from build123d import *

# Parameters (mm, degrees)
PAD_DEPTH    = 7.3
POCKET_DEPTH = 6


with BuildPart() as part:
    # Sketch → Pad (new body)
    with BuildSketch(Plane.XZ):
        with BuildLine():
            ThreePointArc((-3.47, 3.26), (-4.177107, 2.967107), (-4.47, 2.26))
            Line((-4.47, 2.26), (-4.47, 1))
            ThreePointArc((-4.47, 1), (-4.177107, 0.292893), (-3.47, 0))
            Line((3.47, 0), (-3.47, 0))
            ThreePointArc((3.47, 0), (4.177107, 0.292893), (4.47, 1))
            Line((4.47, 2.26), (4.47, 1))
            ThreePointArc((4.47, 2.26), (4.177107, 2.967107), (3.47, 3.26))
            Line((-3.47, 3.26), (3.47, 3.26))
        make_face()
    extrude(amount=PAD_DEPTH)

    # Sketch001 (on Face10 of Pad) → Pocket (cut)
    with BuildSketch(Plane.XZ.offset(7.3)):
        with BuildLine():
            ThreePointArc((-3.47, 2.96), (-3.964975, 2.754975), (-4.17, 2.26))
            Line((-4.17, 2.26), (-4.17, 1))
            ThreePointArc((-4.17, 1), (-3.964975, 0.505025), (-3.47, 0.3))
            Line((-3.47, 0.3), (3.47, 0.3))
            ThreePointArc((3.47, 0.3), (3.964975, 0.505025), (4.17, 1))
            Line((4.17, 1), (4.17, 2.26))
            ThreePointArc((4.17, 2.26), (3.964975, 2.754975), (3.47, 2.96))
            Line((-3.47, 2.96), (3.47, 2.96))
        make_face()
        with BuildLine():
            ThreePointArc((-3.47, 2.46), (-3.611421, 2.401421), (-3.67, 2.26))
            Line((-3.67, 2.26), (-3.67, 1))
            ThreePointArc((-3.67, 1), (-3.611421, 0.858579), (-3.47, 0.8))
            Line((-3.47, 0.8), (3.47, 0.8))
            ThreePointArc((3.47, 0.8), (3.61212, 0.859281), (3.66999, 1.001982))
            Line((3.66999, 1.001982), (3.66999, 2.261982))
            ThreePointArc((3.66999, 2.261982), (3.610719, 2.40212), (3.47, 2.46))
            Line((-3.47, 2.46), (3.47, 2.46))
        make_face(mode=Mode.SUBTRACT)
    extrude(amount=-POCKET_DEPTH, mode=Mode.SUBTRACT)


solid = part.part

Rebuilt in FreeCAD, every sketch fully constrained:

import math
import FreeCAD as App
import Part
import Sketcher

V = App.Vector

doc = App.newDocument("Part")
body = doc.addObject("PartDesign::Body", "Body")

sketch1 = body.newObject("Sketcher::SketchObject", "Sketch")
sketch1.AttachmentSupport = (doc.getObject("XZ_Plane"), [""])
sketch1.MapMode = "FlatFace"
sketch1.addGeometry([
    Part.ArcOfCircle(Part.Circle(V(-3.5, 2.3, 0), V(0, 0, 1), 1), math.radians(90), math.radians(180)),
    Part.LineSegment(V(-4.5, 2.3, 0), V(-4.5, 1, 0)),
    Part.ArcOfCircle(Part.Circle(V(-3.5, 1, 0), V(0, 0, 1), 1), math.radians(180), math.radians(270)),
    Part.LineSegment(V(-3.5, 0, 0), V(3.5, 0, 0)),
    Part.ArcOfCircle(Part.Circle(V(3.5, 1, 0), V(0, 0, 1), 1), math.radians(-90), math.radians(0)),
    Part.LineSegment(V(4.5, 1, 0), V(4.5, 2.3, 0)),
    Part.ArcOfCircle(Part.Circle(V(3.5, 2.3, 0), V(0, 0, 1), 1), math.radians(0), math.radians(90)),
    Part.LineSegment(V(3.5, 3.3, 0), V(-3.5, 3.3, 0)),
], False)
sketch1.addConstraint([
    Sketcher.Constraint("Tangent", 0, 2, 1, 1),
    Sketcher.Constraint("Tangent", 1, 2, 2, 1),
    Sketcher.Constraint("Tangent", 2, 2, 3, 1),
    Sketcher.Constraint("Tangent", 3, 2, 4, 1),
    Sketcher.Constraint("Tangent", 4, 2, 5, 1),
    Sketcher.Constraint("Tangent", 5, 2, 6, 1),
    Sketcher.Constraint("Tangent", 6, 2, 7, 1),
    Sketcher.Constraint("Tangent", 7, 2, 0, 1),
    Sketcher.Constraint("Vertical", 1),
    Sketcher.Constraint("Horizontal", 3),
    Sketcher.Constraint("Vertical", 5),
    Sketcher.Constraint("Horizontal", 7),
    Sketcher.Constraint("Equal", 0, 2),
    Sketcher.Constraint("Equal", 2, 4),
    Sketcher.Constraint("Equal", 4, 6),
    Sketcher.Constraint("Symmetric", 2, 2, 3, 2, -1, 1),
    Sketcher.Constraint("Radius", 0, 0.999999),
    Sketcher.Constraint("DistanceX", 3, 1, 3, 2, 6.94),
    Sketcher.Constraint("DistanceY", 1, 2, 1, 1, 1.26),
])
pad1 = body.newObject("PartDesign::Pad", "Pad")
pad1.Profile = sketch1
pad1.Length = 7.3

sketch2 = body.newObject("Sketcher::SketchObject", "Sketch001")
sketch2.AttachmentSupport = (doc.getObject("XZ_Plane"), [""])
sketch2.MapMode = "FlatFace"
sketch2.AttachmentOffset = App.Placement(V(0, 0, 7.3), App.Rotation())
sketch2.addGeometry([
    Part.ArcOfCircle(Part.Circle(V(-3.47, 2.26, 0), V(0, 0, 1), 0.7), math.radians(90), math.radians(180)),
    Part.LineSegment(V(-4.17, 2.26, 0), V(-4.17, 1, 0)),
    Part.ArcOfCircle(Part.Circle(V(-3.47, 1, 0), V(0, 0, 1), 0.7), math.radians(180), math.radians(270)),
    Part.LineSegment(V(-3.47, 0.3, 0), V(3.47, 0.3, 0)),
    Part.ArcOfCircle(Part.Circle(V(3.47, 1, 0), V(0, 0, 1), 0.7), math.radians(-90), math.radians(0)),
    Part.LineSegment(V(4.17, 1, 0), V(4.17, 2.26, 0)),
    Part.ArcOfCircle(Part.Circle(V(3.47, 2.26, 0), V(0, 0, 1), 0.7), math.radians(0), math.radians(90)),
    Part.LineSegment(V(3.47, 2.96, 0), V(-3.47, 2.96, 0)),
    Part.ArcOfCircle(Part.Circle(V(-3.47, 2.26, 0), V(0, 0, 1), 0.2), math.radians(90), math.radians(180)),
    Part.LineSegment(V(-3.47, 2.46, 0), V(3.47, 2.46, 0)),
    Part.ArcOfCircle(Part.Circle(V(3.47, 2.26, 0), V(0, 0, 1), 0.2), math.radians(1), math.radians(90)),
    Part.LineSegment(V(3.67, 2.26, 0), V(3.67, 1, 0)),
    Part.ArcOfCircle(Part.Circle(V(3.47, 1, 0), V(0, 0, 1), 0.2), math.radians(-90), math.radians(1)),
    Part.LineSegment(V(3.47, 0.8, 0), V(-3.47, 0.8, 0)),
    Part.ArcOfCircle(Part.Circle(V(-3.47, 1, 0), V(0, 0, 1), 0.2), math.radians(-180), math.radians(-90)),
    Part.LineSegment(V(-3.67, 1, 0), V(-3.67, 2.26, 0)),
], False)
sketch2.addConstraint([
    Sketcher.Constraint("Tangent", 0, 2, 1, 1),
    Sketcher.Constraint("Tangent", 1, 2, 2, 1),
    Sketcher.Constraint("Tangent", 2, 2, 3, 1),
    Sketcher.Constraint("Tangent", 3, 2, 4, 1),
    Sketcher.Constraint("Tangent", 4, 2, 5, 1),
    Sketcher.Constraint("Tangent", 5, 2, 6, 1),
    Sketcher.Constraint("Tangent", 6, 2, 7, 1),
    Sketcher.Constraint("Tangent", 7, 2, 0, 1),
    Sketcher.Constraint("Coincident", 8, 1, 9, 1),
    Sketcher.Constraint("Tangent", 9, 2, 10, 2),
    Sketcher.Constraint("Coincident", 10, 1, 11, 1),
    Sketcher.Constraint("Coincident", 11, 2, 12, 2),
    Sketcher.Constraint("Tangent", 12, 1, 13, 1),
    Sketcher.Constraint("Coincident", 13, 2, 14, 2),
    Sketcher.Constraint("Coincident", 14, 1, 15, 1),
    Sketcher.Constraint("Coincident", 15, 2, 8, 2),
    Sketcher.Constraint("Vertical", 1),
    Sketcher.Constraint("Horizontal", 3),
    Sketcher.Constraint("Vertical", 5),
    Sketcher.Constraint("Horizontal", 7),
    Sketcher.Constraint("Horizontal", 9),
    Sketcher.Constraint("Vertical", 11),
    Sketcher.Constraint("Horizontal", 13),
    Sketcher.Constraint("Vertical", 15),
    Sketcher.Constraint("Coincident", 8, 3, 0, 3),
    Sketcher.Constraint("Coincident", 10, 3, 6, 3),
    Sketcher.Constraint("Coincident", 12, 3, 4, 3),
    Sketcher.Constraint("Equal", 0, 2),
    Sketcher.Constraint("Equal", 2, 4),
    Sketcher.Constraint("Equal", 4, 6),
    Sketcher.Constraint("Equal", 12, 14),
    Sketcher.Constraint("Horizontal", 4, 2, 14, 1),
    Sketcher.Constraint("Horizontal", 5, 2, 15, 2),
    Sketcher.Constraint("Vertical", 7, 2, 8, 1),
    Sketcher.Constraint("Vertical", 8, 1, 13, 2),
    Sketcher.Constraint("Equal", 5, 11),
    Sketcher.Constraint("Radius", 0, 0.699999),
    Sketcher.Constraint("Radius", 8, 0.200001),
    Sketcher.Constraint("DistanceY", -1, 1, 2, 3, 0.999999),
    Sketcher.Constraint("DistanceX", 3, 1, 3, 2, 6.94),
    Sketcher.Constraint("DistanceY", 1, 2, 1, 1, 1.26),
    Sketcher.Constraint("DistanceX", 0, 3, -1, 1, 3.470001),
    Sketcher.Constraint("DistanceY", -1, 1, 10, 1, 2.261982),
])
pocket1 = body.newObject("PartDesign::Pocket", "Pocket")
pocket1.Profile = sketch2
pocket1.Length = 6

doc.recompute()
